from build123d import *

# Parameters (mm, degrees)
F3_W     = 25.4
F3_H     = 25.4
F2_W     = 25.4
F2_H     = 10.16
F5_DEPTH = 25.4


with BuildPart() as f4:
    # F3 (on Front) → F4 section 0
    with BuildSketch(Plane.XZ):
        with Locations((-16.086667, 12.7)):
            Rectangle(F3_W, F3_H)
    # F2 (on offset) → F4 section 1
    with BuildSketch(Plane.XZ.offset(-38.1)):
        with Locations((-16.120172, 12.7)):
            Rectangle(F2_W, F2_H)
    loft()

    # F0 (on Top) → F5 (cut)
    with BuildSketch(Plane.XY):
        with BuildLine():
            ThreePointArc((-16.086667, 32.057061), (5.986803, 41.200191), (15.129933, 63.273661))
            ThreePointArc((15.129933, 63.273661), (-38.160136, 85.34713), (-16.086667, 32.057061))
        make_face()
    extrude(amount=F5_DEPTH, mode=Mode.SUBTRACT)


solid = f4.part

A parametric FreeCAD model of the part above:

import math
import FreeCAD as App
import Part
import Sketcher
from FreeCAD import Vector
Q = App.Units.Quantity


def add_polygon(sketch, points):
    """Adds a closed chain of lines whose ends are joined by coincident constraints."""
    first, n = sketch.GeometryCount, len(points)
    for a, b in zip(points, points[1:] + points[:1]):
        sketch.addGeometry(Part.LineSegment(App.Vector(*a, 0), App.Vector(*b, 0)), False)
    for i in range(n):
        sketch.addConstraint(Sketcher.Constraint("Coincident", first + i, 2, first + (i + 1) % n, 1))

doc = App.newDocument("Part")
params = doc.addObject("Spreadsheet::Sheet", "Params")
for row, (alias, value) in enumerate([
    ("sketch1_width", "1 in"),
    ("sketch2_width", "1 in"),
    ("sketch2_height", "0.4 in"),
    ("sketch3_radius", "1.2289999 in"),
    ("pocket1_length", "1 in"),
], start=1):
    params.set(f"A{row}", alias)
    params.set(f"B{row}", "=" + value)
    params.setAlias(f"B{row}", alias)

body = doc.addObject("PartDesign::Body", "Body")

sketch1 = body.newObject("Sketcher::SketchObject", "Sketch")
sketch1.AttachmentSupport = (doc.getObject("XZ_Plane"), [""])
sketch1.MapMode = "FlatFace"
add_polygon(sketch1, [(-29, 25), (-29, 0), (-3, 0), (-3, 25)])
sketch1.addConstraint(Sketcher.Constraint("Vertical", 0))
sketch1.addConstraint(Sketcher.Constraint("Horizontal", 1))
sketch1.addConstraint(Sketcher.Constraint("Vertical", 2))
sketch1.addConstraint(Sketcher.Constraint("Horizontal", 3))
sketch1.addConstraint(Sketcher.Constraint("PointOnObject", 0, 2, -1))
sketch1.addConstraint(Sketcher.Constraint("Equal", 3, 0))
sketch1.addConstraint(Sketcher.Constraint("DistanceX", 1, 1, 1, 2, Q("1 in")))
sketch1.addConstraint(Sketcher.Constraint("DistanceX", 0, 2, -1, 1, 28.786667))
sketch1.setExpression("Constraints[10]", "Params.sketch1_width")

sketch2 = body.newObject("Sketcher::SketchObject", "Sketch001")
sketch2.AttachmentSupport = (doc.getObject("XZ_Plane"), [""])
sketch2.MapMode = "FlatFace"
sketch2.AttachmentOffset = App.Placement(Vector(0, 0, -1.5 * 25.4), App.Rotation())
add_polygon(sketch2, [(-29, 18), (-29, 8), (-3, 8), (-3, 18)])
sketch2.addConstraint(Sketcher.Constraint("Vertical", 0))
sketch2.addConstraint(Sketcher.Constraint("Horizontal", 1))
sketch2.addConstraint(Sketcher.Constraint("Vertical", 2))
sketch2.addConstraint(Sketcher.Constraint("Horizontal", 3))
sketch2.addConstraint(Sketcher.Constraint("DistanceX", 1, 1, 1, 2, Q("1 in")))
sketch2.addConstraint(Sketcher.Constraint("DistanceY", 0, 2, 0, 1, Q("0.4 in")))
sketch2.addConstraint(Sketcher.Constraint("DistanceY", -1, 1, 0, 2, Q("0.3 in")))
sketch2.addConstraint(Sketcher.Constraint("DistanceX", 0, 2, -1, 1, 28.820172))
sketch2.setExpression("Constraints[8]", "Params.sketch2_width")
sketch2.setExpression("Constraints[9]", "Params.sketch2_height")

additiveloft = body.newObject("PartDesign::AdditiveLoft", "AdditiveLoft")
additiveloft.Profile = sketch1
additiveloft.Sections = [sketch2]

sketch3 = body.newObject("Sketcher::SketchObject", "Sketch002")
sketch3.AttachmentSupport = (doc.getObject("XY_Plane"), [""])
sketch3.MapMode = "FlatFace"
sketch3.addGeometry(Part.ArcOfCircle(Part.Circle(Vector(-16, 63, 0), Vector(0, 0, 1), 31), math.radians(-90), math.radians(0)), False)
sketch3.addGeometry(Part.ArcOfCircle(Part.Circle(Vector(-16, 63, 0), Vector(0, 0, 1), 31), math.radians(0), math.radians(270)), False)
sketch3.addConstraint(Sketcher.Constraint("Tangent", 0, 1, 1, 2))
sketch3.addConstraint(Sketcher.Constraint("Coincident", 1, 1, 0, 2))
sketch3.addConstraint(Sketcher.Constraint("Horizontal", 0, 3, 1, 1))
sketch3.addConstraint(Sketcher.Constraint("Vertical", 1, 3, 0, 1))
sketch3.addConstraint(Sketcher.Constraint("Radius", 0, Q("1.2289999 in")))
sketch3.addConstraint(Sketcher.Constraint("DistanceY", -1, 1, 0, 3, 63.273659))
sketch3.addConstraint(Sketcher.Constraint("DistanceX", 0, 3, -1, 1, 16.086665))
sketch3.setExpression("Constraints[4]", "Params.sketch3_radius")
pocket1 = body.newObject("PartDesign::Pocket", "Pocket")
pocket1.Profile = sketch3
pocket1.setExpression("Length", "Params.pocket1_length")
pocket1.Reversed = True

doc.recompute()
